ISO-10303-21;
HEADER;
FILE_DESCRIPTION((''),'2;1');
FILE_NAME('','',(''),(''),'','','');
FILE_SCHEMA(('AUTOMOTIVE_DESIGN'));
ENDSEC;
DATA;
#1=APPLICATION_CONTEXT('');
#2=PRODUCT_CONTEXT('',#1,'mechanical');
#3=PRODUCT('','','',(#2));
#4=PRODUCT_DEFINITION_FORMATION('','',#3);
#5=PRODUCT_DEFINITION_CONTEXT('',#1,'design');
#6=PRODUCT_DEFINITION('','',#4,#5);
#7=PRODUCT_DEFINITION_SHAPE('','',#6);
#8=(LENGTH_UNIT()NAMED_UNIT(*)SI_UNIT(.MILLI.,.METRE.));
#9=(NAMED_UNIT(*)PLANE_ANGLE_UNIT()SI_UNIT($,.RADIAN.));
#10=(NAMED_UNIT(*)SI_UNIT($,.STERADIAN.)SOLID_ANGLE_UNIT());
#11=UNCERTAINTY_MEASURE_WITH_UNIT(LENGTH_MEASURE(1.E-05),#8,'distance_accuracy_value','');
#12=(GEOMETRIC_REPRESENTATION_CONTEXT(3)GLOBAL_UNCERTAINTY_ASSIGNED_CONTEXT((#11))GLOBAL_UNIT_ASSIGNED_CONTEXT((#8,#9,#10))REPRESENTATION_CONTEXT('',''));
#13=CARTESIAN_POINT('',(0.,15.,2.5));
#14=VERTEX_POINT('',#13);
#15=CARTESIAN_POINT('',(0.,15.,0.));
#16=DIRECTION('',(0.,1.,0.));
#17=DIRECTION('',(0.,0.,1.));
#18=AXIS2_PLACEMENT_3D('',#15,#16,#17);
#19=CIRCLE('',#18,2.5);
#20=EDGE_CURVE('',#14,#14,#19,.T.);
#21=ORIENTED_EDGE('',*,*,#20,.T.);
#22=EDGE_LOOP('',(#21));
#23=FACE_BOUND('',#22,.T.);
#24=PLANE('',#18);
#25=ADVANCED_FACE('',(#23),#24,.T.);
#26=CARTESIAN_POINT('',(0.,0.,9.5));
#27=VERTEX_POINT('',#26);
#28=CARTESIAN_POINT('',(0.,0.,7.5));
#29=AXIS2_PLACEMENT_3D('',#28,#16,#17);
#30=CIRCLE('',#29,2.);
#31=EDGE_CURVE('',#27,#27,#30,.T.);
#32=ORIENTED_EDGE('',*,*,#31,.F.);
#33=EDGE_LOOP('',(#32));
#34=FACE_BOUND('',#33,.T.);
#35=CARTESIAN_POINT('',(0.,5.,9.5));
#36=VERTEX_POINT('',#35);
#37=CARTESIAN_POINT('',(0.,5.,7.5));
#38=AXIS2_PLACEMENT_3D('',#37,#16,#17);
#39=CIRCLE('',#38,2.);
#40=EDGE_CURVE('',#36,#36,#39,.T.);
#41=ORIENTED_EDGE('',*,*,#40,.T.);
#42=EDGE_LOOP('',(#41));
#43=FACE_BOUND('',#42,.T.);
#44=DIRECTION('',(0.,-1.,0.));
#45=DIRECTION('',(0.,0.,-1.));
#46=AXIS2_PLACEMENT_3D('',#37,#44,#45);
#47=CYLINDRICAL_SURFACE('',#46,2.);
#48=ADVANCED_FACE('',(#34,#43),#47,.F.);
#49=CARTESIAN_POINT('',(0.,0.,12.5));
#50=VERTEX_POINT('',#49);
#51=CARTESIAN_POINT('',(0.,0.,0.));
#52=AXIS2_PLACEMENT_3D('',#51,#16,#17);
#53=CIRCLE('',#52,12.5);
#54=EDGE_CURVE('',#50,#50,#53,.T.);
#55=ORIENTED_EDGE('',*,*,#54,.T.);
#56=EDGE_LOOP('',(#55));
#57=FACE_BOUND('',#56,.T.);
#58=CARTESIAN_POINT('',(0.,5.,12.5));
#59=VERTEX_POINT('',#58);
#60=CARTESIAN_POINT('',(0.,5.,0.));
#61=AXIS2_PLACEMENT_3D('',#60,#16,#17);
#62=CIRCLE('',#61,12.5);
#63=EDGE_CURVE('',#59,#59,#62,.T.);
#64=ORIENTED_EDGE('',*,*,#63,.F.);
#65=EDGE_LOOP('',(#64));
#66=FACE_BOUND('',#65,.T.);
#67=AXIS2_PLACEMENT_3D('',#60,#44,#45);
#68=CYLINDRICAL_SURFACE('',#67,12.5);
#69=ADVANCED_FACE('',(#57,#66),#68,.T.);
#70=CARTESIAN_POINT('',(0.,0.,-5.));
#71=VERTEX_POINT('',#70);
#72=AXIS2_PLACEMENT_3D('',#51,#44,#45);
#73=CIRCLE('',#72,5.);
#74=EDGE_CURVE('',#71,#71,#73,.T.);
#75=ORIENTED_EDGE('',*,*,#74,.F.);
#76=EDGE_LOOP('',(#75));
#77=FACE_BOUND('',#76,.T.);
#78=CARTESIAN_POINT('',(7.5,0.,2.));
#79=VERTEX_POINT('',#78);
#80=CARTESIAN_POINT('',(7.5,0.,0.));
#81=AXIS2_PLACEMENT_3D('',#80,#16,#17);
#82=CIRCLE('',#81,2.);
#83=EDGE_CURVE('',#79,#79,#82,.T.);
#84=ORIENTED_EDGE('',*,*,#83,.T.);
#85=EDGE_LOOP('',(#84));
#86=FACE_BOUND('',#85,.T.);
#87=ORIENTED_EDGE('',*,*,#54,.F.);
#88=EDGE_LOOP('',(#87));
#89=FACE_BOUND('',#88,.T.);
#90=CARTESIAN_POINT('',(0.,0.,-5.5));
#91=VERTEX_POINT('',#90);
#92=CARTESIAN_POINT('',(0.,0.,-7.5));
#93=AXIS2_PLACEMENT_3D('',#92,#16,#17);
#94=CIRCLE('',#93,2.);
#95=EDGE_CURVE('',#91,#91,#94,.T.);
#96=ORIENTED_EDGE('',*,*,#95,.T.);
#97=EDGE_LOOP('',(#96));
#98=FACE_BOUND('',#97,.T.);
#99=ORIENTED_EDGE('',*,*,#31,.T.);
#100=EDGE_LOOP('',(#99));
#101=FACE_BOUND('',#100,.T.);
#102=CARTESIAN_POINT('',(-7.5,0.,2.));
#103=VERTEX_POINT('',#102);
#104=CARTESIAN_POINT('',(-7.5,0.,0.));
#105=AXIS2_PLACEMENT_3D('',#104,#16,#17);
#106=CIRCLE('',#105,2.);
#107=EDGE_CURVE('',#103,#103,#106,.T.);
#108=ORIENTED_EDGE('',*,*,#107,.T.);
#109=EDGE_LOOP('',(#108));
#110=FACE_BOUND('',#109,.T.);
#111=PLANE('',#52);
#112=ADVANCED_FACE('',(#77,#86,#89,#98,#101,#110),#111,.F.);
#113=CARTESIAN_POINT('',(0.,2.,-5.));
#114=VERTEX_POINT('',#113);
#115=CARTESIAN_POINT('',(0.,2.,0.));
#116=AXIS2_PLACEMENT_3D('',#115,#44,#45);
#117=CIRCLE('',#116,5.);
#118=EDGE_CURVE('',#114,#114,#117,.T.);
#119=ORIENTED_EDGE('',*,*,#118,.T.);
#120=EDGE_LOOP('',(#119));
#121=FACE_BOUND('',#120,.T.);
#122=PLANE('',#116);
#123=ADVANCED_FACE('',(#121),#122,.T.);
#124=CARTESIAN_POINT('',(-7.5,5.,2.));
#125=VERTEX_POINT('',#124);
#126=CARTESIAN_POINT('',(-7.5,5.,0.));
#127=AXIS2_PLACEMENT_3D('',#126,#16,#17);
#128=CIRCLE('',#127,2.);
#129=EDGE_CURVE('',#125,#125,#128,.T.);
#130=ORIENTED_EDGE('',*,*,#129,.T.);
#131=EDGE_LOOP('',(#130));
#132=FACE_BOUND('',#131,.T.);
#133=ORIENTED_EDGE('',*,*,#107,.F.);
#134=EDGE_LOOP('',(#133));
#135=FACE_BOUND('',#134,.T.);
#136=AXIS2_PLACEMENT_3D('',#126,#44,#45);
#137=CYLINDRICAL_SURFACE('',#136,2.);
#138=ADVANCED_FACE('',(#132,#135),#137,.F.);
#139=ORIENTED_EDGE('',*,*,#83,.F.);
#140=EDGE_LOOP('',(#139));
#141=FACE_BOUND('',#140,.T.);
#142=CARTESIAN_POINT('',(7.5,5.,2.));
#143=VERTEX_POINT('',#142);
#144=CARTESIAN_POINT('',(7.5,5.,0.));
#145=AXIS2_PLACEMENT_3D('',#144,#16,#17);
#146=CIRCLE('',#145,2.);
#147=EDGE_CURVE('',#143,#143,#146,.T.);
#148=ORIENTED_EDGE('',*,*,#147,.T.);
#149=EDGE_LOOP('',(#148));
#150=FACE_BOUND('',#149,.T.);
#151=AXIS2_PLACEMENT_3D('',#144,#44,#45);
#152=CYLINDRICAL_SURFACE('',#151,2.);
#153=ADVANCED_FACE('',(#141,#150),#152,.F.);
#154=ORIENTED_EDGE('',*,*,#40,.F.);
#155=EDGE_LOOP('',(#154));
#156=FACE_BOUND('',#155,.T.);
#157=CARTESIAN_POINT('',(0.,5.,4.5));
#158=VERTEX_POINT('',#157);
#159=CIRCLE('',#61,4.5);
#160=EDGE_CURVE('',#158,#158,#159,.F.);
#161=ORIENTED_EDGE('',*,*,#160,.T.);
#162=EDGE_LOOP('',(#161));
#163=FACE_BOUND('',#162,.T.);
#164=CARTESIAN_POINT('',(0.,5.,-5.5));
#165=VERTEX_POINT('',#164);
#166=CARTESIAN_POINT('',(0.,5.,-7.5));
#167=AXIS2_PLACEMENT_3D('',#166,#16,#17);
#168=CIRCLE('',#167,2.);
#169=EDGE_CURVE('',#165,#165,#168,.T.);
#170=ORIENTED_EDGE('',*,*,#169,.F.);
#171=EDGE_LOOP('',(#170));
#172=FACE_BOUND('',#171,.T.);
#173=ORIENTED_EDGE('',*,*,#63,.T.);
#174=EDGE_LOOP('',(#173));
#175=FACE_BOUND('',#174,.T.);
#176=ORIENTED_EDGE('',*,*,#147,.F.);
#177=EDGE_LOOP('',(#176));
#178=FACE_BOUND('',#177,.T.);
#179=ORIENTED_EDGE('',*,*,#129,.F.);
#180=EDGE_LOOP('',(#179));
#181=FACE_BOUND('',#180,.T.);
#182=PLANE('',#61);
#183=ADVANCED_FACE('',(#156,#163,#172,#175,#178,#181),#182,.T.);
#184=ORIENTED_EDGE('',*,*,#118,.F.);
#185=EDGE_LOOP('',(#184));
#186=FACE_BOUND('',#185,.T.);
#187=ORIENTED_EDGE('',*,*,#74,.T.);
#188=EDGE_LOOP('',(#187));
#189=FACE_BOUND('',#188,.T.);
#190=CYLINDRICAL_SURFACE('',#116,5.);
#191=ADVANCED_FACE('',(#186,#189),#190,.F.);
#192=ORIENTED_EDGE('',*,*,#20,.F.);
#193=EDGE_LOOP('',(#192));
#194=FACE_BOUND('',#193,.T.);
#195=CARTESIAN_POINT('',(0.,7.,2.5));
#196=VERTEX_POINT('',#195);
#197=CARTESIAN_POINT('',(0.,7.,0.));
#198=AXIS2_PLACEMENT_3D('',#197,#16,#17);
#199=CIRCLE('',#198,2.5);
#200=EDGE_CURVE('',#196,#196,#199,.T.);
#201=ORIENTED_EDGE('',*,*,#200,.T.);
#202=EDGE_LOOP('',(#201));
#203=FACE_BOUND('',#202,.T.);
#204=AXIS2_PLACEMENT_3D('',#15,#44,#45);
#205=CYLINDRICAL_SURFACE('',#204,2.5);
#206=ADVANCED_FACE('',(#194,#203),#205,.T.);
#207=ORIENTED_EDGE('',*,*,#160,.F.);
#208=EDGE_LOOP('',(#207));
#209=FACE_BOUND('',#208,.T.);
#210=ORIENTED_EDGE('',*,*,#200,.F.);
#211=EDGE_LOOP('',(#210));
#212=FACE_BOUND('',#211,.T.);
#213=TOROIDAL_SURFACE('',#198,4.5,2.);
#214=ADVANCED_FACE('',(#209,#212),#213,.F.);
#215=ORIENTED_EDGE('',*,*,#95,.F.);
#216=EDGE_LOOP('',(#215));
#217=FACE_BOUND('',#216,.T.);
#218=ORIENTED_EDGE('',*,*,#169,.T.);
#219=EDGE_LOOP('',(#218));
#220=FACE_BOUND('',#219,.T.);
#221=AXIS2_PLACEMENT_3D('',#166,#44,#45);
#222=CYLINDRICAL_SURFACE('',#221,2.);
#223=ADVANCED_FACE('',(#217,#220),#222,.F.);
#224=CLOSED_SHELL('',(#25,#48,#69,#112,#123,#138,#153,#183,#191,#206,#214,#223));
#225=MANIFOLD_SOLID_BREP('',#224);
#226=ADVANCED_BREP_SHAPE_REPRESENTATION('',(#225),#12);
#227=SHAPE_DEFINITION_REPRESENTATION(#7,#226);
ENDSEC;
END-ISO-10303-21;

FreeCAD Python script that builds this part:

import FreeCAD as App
import Part
import Sketcher

V = App.Vector


def edges_at(feature, points):
    """Names of the edges that pass closest to the given points."""
    edges = feature.Shape.Edges
    near = lambda p: min(range(len(edges)), key=lambda i: edges[i].distToShape(Part.Vertex(*p))[0])
    return sorted({f"Edge{near(p) + 1}" for p in points})

doc = App.newDocument("Part")
body = doc.addObject("PartDesign::Body", "Body")

sketch1 = body.newObject("Sketcher::SketchObject", "Sketch")
sketch1.AttachmentSupport = (doc.getObject("XZ_Plane"), [""])
sketch1.MapMode = "FlatFace"
sketch1.addGeometry([
    Part.Circle(V(0, 0, 0), V(0, 0, 1), 12.5),
    Part.Circle(V(0, 7.5, 0), V(0, 0, 1), 2),
    Part.Circle(V(-7.5, 0, 0), V(0, 0, 1), 2),
    Part.Circle(V(7.5, 0, 0), V(0, 0, 1), 2),
    Part.Circle(V(0, -7.5, 0), V(0, 0, 1), 2),
], False)
sketch1.addConstraint([
    Sketcher.Constraint("Coincident", 0, 3, -1, 1),
    Sketcher.Constraint("Equal", 1, 2),
    Sketcher.Constraint("Equal", 2, 3),
    Sketcher.Constraint("Equal", 3, 4),
    Sketcher.Constraint("Symmetric", 2, 3, 3, 3, -1, 1),
    Sketcher.Constraint("Symmetric", 1, 3, 4, 3, -1, 1),
    Sketcher.Constraint("PointOnObject", 1, 3, -2),
    Sketcher.Constraint("PointOnObject", 2, 3, -1),
    Sketcher.Constraint("Diameter", 0, 25.0),
    Sketcher.Constraint("Diameter", 1, 4.0),
    Sketcher.Constraint("DistanceX", 2, 3, 3, 3, 15.0),
    Sketcher.Constraint("DistanceY", 4, 3, 1, 3, 15.0),
])
pad1 = body.newObject("PartDesign::Pad", "Pad")
pad1.Profile = sketch1
pad1.Length = 5
pad1.Reversed = True

sketch2 = body.newObject("Sketcher::SketchObject", "Sketch001")
sketch2.AttachmentSupport = (doc.getObject("XZ_Plane"), [""])
sketch2.MapMode = "FlatFace"
sketch2.AttachmentOffset = App.Placement(V(0, 0, -5), App.Rotation())
sketch2.addGeometry(Part.Circle(V(0, 0, 0), V(0, 0, 1), 2.5), False)
sketch2.addConstraint([
    Sketcher.Constraint("Coincident", 0, 3, -1, 1),
    Sketcher.Constraint("Diameter", 0, 5.0),
])
pad2 = body.newObject("PartDesign::Pad", "Pad001")
pad2.Profile = sketch2
pad2.Length = 10
pad2.Reversed = True

sketch3 = body.newObject("Sketcher::SketchObject", "Sketch002")
sketch3.AttachmentSupport = (doc.getObject("XZ_Plane"), [""])
sketch3.MapMode = "FlatFace"
sketch3.addGeometry(Part.Circle(V(0, 0, 0), V(0, 0, 1), 5), False)
sketch3.addConstraint([
    Sketcher.Constraint("Coincident", 0, 3, -1, 1),
    Sketcher.Constraint("Diameter", 0, 10.0),
])
pocket1 = body.newObject("PartDesign::Pocket", "Pocket")
pocket1.Profile = sketch3
pocket1.Length = 2
doc.recompute()

fillet = body.newObject("PartDesign::Fillet", "Fillet")
fillet.Base = (pocket1, edges_at(pocket1, [(-2.5, 5, 0)]))
fillet.Radius = 2

doc.recompute()
